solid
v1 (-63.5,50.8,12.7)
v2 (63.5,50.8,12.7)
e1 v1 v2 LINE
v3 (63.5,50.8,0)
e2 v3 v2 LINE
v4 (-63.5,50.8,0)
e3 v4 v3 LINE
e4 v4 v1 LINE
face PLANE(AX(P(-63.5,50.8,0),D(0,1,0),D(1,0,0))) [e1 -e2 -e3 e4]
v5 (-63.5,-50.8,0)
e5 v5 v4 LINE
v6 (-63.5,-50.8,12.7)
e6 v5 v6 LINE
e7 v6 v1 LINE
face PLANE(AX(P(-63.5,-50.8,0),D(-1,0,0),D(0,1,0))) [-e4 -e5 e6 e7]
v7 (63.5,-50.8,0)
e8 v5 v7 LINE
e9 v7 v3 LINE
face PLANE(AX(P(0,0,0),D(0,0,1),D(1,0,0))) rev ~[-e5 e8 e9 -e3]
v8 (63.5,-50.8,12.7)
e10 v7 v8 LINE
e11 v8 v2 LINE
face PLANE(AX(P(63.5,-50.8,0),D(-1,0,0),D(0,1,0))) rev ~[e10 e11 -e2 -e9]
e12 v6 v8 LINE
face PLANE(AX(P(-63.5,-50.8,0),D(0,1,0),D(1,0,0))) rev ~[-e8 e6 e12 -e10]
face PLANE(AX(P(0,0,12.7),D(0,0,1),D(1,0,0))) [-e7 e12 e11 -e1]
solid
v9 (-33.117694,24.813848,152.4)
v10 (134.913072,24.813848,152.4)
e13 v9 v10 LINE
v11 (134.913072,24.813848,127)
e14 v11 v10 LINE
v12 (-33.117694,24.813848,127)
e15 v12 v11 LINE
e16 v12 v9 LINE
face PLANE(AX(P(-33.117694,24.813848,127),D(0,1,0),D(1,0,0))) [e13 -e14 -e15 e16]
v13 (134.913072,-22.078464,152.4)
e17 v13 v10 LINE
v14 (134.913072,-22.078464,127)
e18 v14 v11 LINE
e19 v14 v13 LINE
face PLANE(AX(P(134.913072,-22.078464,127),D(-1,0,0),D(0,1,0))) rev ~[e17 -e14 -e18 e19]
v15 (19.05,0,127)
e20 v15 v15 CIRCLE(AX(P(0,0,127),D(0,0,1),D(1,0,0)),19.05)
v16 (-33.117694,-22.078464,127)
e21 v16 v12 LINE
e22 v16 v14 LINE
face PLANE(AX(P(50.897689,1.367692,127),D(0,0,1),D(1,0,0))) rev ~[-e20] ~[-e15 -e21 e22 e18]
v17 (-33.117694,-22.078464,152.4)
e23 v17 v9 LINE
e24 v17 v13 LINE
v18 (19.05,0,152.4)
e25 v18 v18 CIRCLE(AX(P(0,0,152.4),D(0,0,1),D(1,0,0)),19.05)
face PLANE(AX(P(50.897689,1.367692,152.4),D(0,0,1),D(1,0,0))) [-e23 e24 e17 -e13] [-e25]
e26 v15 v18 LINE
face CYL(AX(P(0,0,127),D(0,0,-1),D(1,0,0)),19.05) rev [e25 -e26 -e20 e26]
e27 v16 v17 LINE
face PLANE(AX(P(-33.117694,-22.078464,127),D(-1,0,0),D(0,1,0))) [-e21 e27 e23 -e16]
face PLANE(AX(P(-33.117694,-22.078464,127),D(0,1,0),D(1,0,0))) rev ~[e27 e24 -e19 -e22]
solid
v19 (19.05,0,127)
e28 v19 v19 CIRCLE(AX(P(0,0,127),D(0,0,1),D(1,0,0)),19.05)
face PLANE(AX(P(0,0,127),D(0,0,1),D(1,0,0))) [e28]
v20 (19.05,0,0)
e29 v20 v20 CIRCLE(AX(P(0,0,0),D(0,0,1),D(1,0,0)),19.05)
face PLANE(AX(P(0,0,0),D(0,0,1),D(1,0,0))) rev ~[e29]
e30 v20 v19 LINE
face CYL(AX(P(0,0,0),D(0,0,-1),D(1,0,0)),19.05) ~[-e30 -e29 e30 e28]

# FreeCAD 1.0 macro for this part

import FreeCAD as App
import Part
import Sketcher
from FreeCAD import Vector
Q = App.Units.Quantity


def add_polygon(sketch, points):
    """Adds a closed chain of lines whose ends are joined by coincident constraints."""
    first, n = sketch.GeometryCount, len(points)
    for a, b in zip(points, points[1:] + points[:1]):
        sketch.addGeometry(Part.LineSegment(App.Vector(*a, 0), App.Vector(*b, 0)), False)
    for i in range(n):
        sketch.addConstraint(Sketcher.Constraint("Coincident", first + i, 2, first + (i + 1) % n, 1))

doc = App.newDocument("Part")
body = doc.addObject("PartDesign::Body", "Body")

# Sketch on XY plane
sketch1 = doc.addObject("Sketcher::SketchObject", "Sketch")
body.addObject(sketch1)
sketch1.AttachmentSupport = (doc.XY_Plane, [""])
sketch1.MapMode = "FlatFace"
add_polygon(sketch1, [(-64, 51), (-64, -51), (64, -51), (64, 51)])  # lines 0-3
sketch1.addConstraint(Sketcher.Constraint("Vertical", 0))
sketch1.addConstraint(Sketcher.Constraint("Horizontal", 1))
sketch1.addConstraint(Sketcher.Constraint("Vertical", 2))
sketch1.addConstraint(Sketcher.Constraint("Horizontal", 3))
sketch1.addConstraint(Sketcher.Constraint("Symmetric", 0, 2, 2, 2, -1, 1))
sketch1.addConstraint(Sketcher.Constraint("DistanceX", 1, 1, 1, 2, Q("5 in")))
sketch1.addConstraint(Sketcher.Constraint("DistanceY", 0, 2, 0, 1, Q("4 in")))
pad1 = doc.addObject("PartDesign::Pad", "Pad")
body.addObject(pad1)
pad1.Profile = sketch1
pad1.Length = Q("0.5 in")
body2 = doc.addObject("PartDesign::Body", "Body001")

# Sketch on XY plane
sketch2 = doc.addObject("Sketcher::SketchObject", "Sketch001")
body2.addObject(sketch2)
sketch2.AttachmentSupport = (doc.getObject("XY_Plane001"), [""])
sketch2.MapMode = "FlatFace"
sketch2.addGeometry(Part.Circle(Vector(0, 0, 0), Vector(0, 0, 1), 19), False)
sketch2.addConstraint(Sketcher.Constraint("Coincident", 0, 3, -1, 1))
sketch2.addConstraint(Sketcher.Constraint("Diameter", 0, Q("1.5 in")))
pad2 = doc.addObject("PartDesign::Pad", "Pad001")
body2.addObject(pad2)
pad2.Profile = sketch2
pad2.Length = Q("5 in")
body3 = doc.addObject("PartDesign::Body", "Body002")

# Sketch on XY plane
sketch3 = doc.addObject("Sketcher::SketchObject", "Sketch002")
body3.addObject(sketch3)
sketch3.AttachmentSupport = (doc.getObject("XY_Plane002"), [""])
sketch3.MapMode = "FlatFace"
sketch3.AttachmentOffset = App.Placement(Vector(0, 0, 5 * 25.4), App.Rotation())
add_polygon(sketch3, [(-33, 25), (-33, -22), (135, -22), (135, 25)])  # lines 0-3
sketch3.addGeometry(Part.Circle(Vector(0, 0, 0), Vector(0, 0, 1), 19), False)  # 4
sketch3.addConstraint(Sketcher.Constraint("Vertical", 0))
sketch3.addConstraint(Sketcher.Constraint("Horizontal", 1))
sketch3.addConstraint(Sketcher.Constraint("Vertical", 2))
sketch3.addConstraint(Sketcher.Constraint("Horizontal", 3))
sketch3.addConstraint(Sketcher.Constraint("Coincident", 4, 3, -1, 1))
sketch3.addConstraint(Sketcher.Constraint("Diameter", 4, Q("1.5 in")))
sketch3.addConstraint(Sketcher.Constraint("DistanceX", 1, 1, 1, 2, 168.030765))
sketch3.addConstraint(Sketcher.Constraint("DistanceY", 0, 2, 0, 1, 46.892312))
sketch3.addConstraint(Sketcher.Constraint("DistanceX", -1, 1, 1, 2, 134.913072))
sketch3.addConstraint(Sketcher.Constraint("DistanceY", -1, 1, 2, 2, 24.813848))
pad3 = doc.addObject("PartDesign::Pad", "Pad002")
body3.addObject(pad3)
pad3.Profile = sketch3
pad3.Length = Q("1 in")

doc.recompute()
